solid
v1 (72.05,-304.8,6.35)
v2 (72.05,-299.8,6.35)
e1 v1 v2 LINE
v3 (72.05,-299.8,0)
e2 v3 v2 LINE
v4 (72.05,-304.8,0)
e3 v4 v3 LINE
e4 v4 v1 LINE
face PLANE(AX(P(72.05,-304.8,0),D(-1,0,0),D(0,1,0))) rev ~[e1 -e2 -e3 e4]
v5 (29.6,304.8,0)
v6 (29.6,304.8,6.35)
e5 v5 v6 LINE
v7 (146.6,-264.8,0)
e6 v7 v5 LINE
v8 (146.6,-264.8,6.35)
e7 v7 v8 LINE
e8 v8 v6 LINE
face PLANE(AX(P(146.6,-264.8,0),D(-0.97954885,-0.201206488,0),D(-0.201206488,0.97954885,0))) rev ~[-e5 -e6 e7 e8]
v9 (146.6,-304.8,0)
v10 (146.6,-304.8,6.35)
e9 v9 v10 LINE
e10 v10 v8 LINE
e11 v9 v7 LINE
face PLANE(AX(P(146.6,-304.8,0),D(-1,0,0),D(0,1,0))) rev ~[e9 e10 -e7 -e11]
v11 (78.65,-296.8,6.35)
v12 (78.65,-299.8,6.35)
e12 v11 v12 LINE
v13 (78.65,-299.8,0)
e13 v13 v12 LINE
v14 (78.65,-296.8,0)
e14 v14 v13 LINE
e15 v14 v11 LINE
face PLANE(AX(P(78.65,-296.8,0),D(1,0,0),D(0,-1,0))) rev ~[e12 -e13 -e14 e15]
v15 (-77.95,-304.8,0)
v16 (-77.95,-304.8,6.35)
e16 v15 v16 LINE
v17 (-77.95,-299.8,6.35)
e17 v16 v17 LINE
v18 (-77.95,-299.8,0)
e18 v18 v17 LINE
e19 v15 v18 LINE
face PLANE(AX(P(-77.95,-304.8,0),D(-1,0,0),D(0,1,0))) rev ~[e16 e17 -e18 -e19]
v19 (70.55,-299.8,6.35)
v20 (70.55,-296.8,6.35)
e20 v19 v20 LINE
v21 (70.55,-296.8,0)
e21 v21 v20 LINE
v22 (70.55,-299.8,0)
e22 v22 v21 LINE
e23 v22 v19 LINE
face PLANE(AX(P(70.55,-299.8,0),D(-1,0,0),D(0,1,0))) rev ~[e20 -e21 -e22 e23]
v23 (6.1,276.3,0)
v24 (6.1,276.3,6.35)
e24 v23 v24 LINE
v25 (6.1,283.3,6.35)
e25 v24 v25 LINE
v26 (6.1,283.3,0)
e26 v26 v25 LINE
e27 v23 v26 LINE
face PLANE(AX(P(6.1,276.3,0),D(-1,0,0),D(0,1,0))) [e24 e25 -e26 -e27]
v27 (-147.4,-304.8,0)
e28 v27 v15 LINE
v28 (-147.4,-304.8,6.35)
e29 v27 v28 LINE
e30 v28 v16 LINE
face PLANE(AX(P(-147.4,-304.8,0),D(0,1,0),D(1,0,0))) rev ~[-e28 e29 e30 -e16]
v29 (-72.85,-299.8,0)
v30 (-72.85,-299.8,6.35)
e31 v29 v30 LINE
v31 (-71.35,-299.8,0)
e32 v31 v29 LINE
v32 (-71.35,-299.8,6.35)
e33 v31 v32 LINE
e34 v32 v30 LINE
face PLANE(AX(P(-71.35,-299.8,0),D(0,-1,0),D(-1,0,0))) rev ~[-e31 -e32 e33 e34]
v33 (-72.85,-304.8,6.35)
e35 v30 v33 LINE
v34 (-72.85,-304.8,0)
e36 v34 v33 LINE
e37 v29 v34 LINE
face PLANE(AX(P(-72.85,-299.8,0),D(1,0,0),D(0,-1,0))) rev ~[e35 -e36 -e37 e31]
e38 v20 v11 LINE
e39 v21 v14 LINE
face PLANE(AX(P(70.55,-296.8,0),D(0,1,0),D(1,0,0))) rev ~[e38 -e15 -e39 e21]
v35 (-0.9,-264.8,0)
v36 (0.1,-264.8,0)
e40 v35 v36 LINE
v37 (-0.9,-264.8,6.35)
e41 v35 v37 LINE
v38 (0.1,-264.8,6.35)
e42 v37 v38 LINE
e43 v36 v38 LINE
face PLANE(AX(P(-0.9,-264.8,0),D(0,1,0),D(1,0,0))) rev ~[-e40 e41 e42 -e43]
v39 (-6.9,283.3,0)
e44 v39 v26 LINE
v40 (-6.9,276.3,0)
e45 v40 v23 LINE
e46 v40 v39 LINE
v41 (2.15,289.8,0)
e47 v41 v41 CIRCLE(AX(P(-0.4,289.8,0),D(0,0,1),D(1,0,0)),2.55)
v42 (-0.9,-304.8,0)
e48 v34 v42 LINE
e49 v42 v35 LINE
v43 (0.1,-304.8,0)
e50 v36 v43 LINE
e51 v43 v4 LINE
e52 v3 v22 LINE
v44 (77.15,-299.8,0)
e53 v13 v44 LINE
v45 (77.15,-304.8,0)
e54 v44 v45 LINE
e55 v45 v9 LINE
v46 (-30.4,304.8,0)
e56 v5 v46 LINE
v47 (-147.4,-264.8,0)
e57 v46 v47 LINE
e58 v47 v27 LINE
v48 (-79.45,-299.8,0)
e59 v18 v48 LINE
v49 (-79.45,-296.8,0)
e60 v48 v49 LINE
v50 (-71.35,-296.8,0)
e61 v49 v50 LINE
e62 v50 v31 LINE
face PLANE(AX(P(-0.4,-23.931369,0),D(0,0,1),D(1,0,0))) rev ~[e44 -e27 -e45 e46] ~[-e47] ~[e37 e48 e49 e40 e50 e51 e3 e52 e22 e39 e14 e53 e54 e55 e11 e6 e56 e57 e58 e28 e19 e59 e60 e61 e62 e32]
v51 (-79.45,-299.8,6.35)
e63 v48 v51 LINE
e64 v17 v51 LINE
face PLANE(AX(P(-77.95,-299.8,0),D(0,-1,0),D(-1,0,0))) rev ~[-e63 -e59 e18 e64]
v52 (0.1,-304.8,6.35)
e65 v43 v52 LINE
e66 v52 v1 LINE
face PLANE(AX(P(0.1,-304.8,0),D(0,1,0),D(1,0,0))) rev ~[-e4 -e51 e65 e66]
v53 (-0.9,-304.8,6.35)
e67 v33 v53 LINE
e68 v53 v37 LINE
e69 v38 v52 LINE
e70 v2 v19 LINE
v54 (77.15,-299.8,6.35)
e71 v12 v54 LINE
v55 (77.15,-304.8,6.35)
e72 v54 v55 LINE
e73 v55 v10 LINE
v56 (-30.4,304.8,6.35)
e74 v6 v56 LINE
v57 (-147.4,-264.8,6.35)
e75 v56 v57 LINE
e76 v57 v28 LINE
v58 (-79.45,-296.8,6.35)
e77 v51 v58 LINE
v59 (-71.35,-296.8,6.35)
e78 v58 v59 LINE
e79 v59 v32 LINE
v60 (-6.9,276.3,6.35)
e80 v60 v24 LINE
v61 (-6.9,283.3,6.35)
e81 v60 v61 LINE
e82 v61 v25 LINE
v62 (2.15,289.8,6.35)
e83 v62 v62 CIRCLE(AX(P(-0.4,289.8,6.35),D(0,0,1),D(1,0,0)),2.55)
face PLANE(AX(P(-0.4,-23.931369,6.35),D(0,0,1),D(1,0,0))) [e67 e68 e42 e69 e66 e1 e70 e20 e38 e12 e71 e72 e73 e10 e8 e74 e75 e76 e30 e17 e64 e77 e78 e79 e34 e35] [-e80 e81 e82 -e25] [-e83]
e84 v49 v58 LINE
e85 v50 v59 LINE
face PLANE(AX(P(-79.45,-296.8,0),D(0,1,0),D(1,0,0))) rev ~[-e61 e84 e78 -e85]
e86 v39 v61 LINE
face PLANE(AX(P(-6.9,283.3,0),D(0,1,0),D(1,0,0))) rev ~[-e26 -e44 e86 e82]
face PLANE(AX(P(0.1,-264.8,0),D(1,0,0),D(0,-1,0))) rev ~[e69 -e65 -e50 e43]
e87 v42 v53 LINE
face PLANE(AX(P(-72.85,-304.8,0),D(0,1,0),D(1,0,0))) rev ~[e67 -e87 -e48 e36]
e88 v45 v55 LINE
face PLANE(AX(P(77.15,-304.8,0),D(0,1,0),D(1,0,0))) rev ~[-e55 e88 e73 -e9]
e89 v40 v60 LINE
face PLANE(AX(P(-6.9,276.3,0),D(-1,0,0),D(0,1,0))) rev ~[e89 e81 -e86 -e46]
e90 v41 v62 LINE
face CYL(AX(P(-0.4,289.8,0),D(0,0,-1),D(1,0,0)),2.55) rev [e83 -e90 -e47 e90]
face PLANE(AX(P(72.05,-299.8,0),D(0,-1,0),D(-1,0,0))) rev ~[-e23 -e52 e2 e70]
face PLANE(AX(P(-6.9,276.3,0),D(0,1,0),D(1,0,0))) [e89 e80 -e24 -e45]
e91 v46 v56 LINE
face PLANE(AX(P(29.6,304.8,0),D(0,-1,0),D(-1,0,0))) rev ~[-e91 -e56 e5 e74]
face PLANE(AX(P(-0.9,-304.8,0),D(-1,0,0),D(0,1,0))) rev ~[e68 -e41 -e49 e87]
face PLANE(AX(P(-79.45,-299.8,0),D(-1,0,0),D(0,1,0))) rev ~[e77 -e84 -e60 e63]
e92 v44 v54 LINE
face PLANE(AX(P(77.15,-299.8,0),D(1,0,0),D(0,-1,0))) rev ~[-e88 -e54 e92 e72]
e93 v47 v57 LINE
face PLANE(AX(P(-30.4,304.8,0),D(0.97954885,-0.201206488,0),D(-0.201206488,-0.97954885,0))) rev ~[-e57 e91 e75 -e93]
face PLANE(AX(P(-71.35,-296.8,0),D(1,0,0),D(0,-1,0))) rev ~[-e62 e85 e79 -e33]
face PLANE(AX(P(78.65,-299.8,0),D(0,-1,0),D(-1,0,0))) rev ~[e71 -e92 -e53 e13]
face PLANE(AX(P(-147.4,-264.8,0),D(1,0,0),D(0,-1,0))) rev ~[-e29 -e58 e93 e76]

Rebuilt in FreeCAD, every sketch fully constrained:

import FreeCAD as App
import Part
import Sketcher

V = App.Vector

doc = App.newDocument("Part")
params = doc.addObject("Spreadsheet::Sheet", "Params")
for row, (alias, value) in enumerate([
    ("sketch1_diameter", "5.1 mm"),
    ("sketch1_width", "1 mm"),
    ("sketch1_width2", "60 mm"),
    ("sketch1_width3", "13 mm"),
    ("sketch1_height", "40 mm"),
    ("pad1_length", "6.35 mm"),
], start=1):
    params.set(f"A{row}", alias)
    params.set(f"B{row}", "=" + value)
    params.setAlias(f"B{row}", alias)

body = doc.addObject("PartDesign::Body", "Body")

# Sketch on XY plane
sketch1 = body.newObject("Sketcher::SketchObject", "Sketch")
sketch1.AttachmentSupport = (doc.getObject("XY_Plane"), [""])
sketch1.MapMode = "FlatFace"
sketch1.addGeometry(Part.LineSegment(V(-30.4, 304.8, 0), V(-147.4, -264.8, 0)), False)
sketch1.addGeometry(Part.LineSegment(V(-147.4, -264.8, 0), V(-147.4, -304.8, 0)), False)
sketch1.addGeometry(Part.LineSegment(V(-147.4, -304.8, 0), V(-77.95, -304.8, 0)), False)
sketch1.addGeometry(Part.LineSegment(V(-77.95, -304.8, 0), V(-77.95, -299.8, 0)), False)
sketch1.addGeometry(Part.LineSegment(V(-77.95, -299.8, 0), V(-79.45, -299.8, 0)), False)
sketch1.addGeometry(Part.LineSegment(V(-79.45, -299.8, 0), V(-79.45, -296.8, 0)), False)
sketch1.addGeometry(Part.LineSegment(V(-79.45, -296.8, 0), V(-71.35, -296.8, 0)), False)
sketch1.addGeometry(Part.LineSegment(V(-71.35, -296.8, 0), V(-71.35, -299.8, 0)), False)
sketch1.addGeometry(Part.LineSegment(V(-71.35, -299.8, 0), V(-72.85, -299.8, 0)), False)
sketch1.addGeometry(Part.LineSegment(V(-72.85, -299.8, 0), V(-72.85, -304.8, 0)), False)
sketch1.addGeometry(Part.LineSegment(V(-72.85, -304.8, 0), V(-0.9, -304.8, 0)), False)
sketch1.addGeometry(Part.LineSegment(V(-0.9, -304.8, 0), V(-0.9, -264.8, 0)), False)
sketch1.addGeometry(Part.LineSegment(V(-0.9, -264.8, 0), V(0.1, -264.8, 0)), False)
sketch1.addGeometry(Part.LineSegment(V(0.1, -264.8, 0), V(0.1, -304.8, 0)), False)
sketch1.addGeometry(Part.LineSegment(V(0.1, -304.8, 0), V(72.05, -304.8, 0)), False)
sketch1.addGeometry(Part.LineSegment(V(72.05, -304.8, 0), V(72.05, -299.8, 0)), False)
sketch1.addGeometry(Part.LineSegment(V(72.05, -299.8, 0), V(70.55, -299.8, 0)), False)
sketch1.addGeometry(Part.LineSegment(V(70.55, -299.8, 0), V(70.55, -296.8, 0)), False)
sketch1.addGeometry(Part.LineSegment(V(70.55, -296.8, 0), V(78.65, -296.8, 0)), False)
sketch1.addGeometry(Part.LineSegment(V(78.65, -296.8, 0), V(78.65, -299.8, 0)), False)
sketch1.addGeometry(Part.LineSegment(V(78.65, -299.8, 0), V(77.15, -299.8, 0)), False)
sketch1.addGeometry(Part.LineSegment(V(77.15, -299.8, 0), V(77.15, -304.8, 0)), False)
sketch1.addGeometry(Part.LineSegment(V(77.15, -304.8, 0), V(146.6, -304.8, 0)), False)
sketch1.addGeometry(Part.LineSegment(V(146.6, -304.8, 0), V(146.6, -264.8, 0)), False)
sketch1.addGeometry(Part.LineSegment(V(146.6, -264.8, 0), V(29.6, 304.8, 0)), False)
sketch1.addGeometry(Part.LineSegment(V(29.6, 304.8, 0), V(-30.4, 304.8, 0)), False)
sketch1.addGeometry(Part.LineSegment(V(6.1, 276.3, 0), V(-6.9, 276.3, 0)), False)
sketch1.addGeometry(Part.LineSegment(V(-6.9, 276.3, 0), V(-6.9, 283.3, 0)), False)
sketch1.addGeometry(Part.LineSegment(V(-6.9, 283.3, 0), V(6.1, 283.3, 0)), False)
sketch1.addGeometry(Part.LineSegment(V(6.1, 283.3, 0), V(6.1, 276.3, 0)), False)
sketch1.addGeometry(Part.Circle(V(-0.4, 289.8, 0), V(0, 0, 1), 2.55), False)
sketch1.addConstraint(Sketcher.Constraint("Coincident", 0, 2, 1, 1))
sketch1.addConstraint(Sketcher.Constraint("Coincident", 1, 2, 2, 1))
sketch1.addConstraint(Sketcher.Constraint("Coincident", 2, 2, 3, 1))
sketch1.addConstraint(Sketcher.Constraint("Coincident", 3, 2, 4, 1))
sketch1.addConstraint(Sketcher.Constraint("Coincident", 4, 2, 5, 1))
sketch1.addConstraint(Sketcher.Constraint("Coincident", 5, 2, 6, 1))
sketch1.addConstraint(Sketcher.Constraint("Coincident", 6, 2, 7, 1))
sketch1.addConstraint(Sketcher.Constraint("Coincident", 7, 2, 8, 1))
sketch1.addConstraint(Sketcher.Constraint("Coincident", 8, 2, 9, 1))
sketch1.addConstraint(Sketcher.Constraint("Coincident", 9, 2, 10, 1))
sketch1.addConstraint(Sketcher.Constraint("Coincident", 10, 2, 11, 1))
sketch1.addConstraint(Sketcher.Constraint("Coincident", 11, 2, 12, 1))
sketch1.addConstraint(Sketcher.Constraint("Coincident", 12, 2, 13, 1))
sketch1.addConstraint(Sketcher.Constraint("Coincident", 13, 2, 14, 1))
sketch1.addConstraint(Sketcher.Constraint("Coincident", 14, 2, 15, 1))
sketch1.addConstraint(Sketcher.Constraint("Coincident", 15, 2, 16, 1))
sketch1.addConstraint(Sketcher.Constraint("Coincident", 16, 2, 17, 1))
sketch1.addConstraint(Sketcher.Constraint("Coincident", 17, 2, 18, 1))
sketch1.addConstraint(Sketcher.Constraint("Coincident", 18, 2, 19, 1))
sketch1.addConstraint(Sketcher.Constraint("Coincident", 19, 2, 20, 1))
sketch1.addConstraint(Sketcher.Constraint("Coincident", 20, 2, 21, 1))
sketch1.addConstraint(Sketcher.Constraint("Coincident", 21, 2, 22, 1))
sketch1.addConstraint(Sketcher.Constraint("Coincident", 22, 2, 23, 1))
sketch1.addConstraint(Sketcher.Constraint("Coincident", 23, 2, 24, 1))
sketch1.addConstraint(Sketcher.Constraint("Coincident", 24, 2, 25, 1))
sketch1.addConstraint(Sketcher.Constraint("Coincident", 25, 2, 0, 1))
sketch1.addConstraint(Sketcher.Constraint("Coincident", 26, 2, 27, 1))
sketch1.addConstraint(Sketcher.Constraint("Coincident", 27, 2, 28, 1))
sketch1.addConstraint(Sketcher.Constraint("Coincident", 28, 2, 29, 1))
sketch1.addConstraint(Sketcher.Constraint("Coincident", 29, 2, 26, 1))
sketch1.addConstraint(Sketcher.Constraint("Vertical", 1))
sketch1.addConstraint(Sketcher.Constraint("Horizontal", 2))
sketch1.addConstraint(Sketcher.Constraint("Vertical", 3))
sketch1.addConstraint(Sketcher.Constraint("Horizontal", 4))
sketch1.addConstraint(Sketcher.Constraint("Vertical", 5))
sketch1.addConstraint(Sketcher.Constraint("Horizontal", 6))
sketch1.addConstraint(Sketcher.Constraint("Vertical", 7))
sketch1.addConstraint(Sketcher.Constraint("Horizontal", 8))
sketch1.addConstraint(Sketcher.Constraint("Vertical", 9))
sketch1.addConstraint(Sketcher.Constraint("Horizontal", 10))
sketch1.addConstraint(Sketcher.Constraint("Vertical", 11))
sketch1.addConstraint(Sketcher.Constraint("Horizontal", 12))
sketch1.addConstraint(Sketcher.Constraint("Vertical", 13))
sketch1.addConstraint(Sketcher.Constraint("Horizontal", 14))
sketch1.addConstraint(Sketcher.Constraint("Vertical", 15))
sketch1.addConstraint(Sketcher.Constraint("Horizontal", 16))
sketch1.addConstraint(Sketcher.Constraint("Vertical", 17))
sketch1.addConstraint(Sketcher.Constraint("Horizontal", 18))
sketch1.addConstraint(Sketcher.Constraint("Vertical", 19))
sketch1.addConstraint(Sketcher.Constraint("Horizontal", 20))
sketch1.addConstraint(Sketcher.Constraint("Vertical", 21))
sketch1.addConstraint(Sketcher.Constraint("Horizontal", 22))
sketch1.addConstraint(Sketcher.Constraint("Vertical", 23))
sketch1.addConstraint(Sketcher.Constraint("Horizontal", 25))
sketch1.addConstraint(Sketcher.Constraint("Horizontal", 26))
sketch1.addConstraint(Sketcher.Constraint("Vertical", 27))
sketch1.addConstraint(Sketcher.Constraint("Horizontal", 28))
sketch1.addConstraint(Sketcher.Constraint("Vertical", 29))
sketch1.addConstraint(Sketcher.Constraint("Horizontal", 4, 2, 7, 2))
sketch1.addConstraint(Sketcher.Constraint("Horizontal", 2, 2, 9, 2))
sketch1.addConstraint(Sketcher.Constraint("Horizontal", 0, 2, 11, 2))
sketch1.addConstraint(Sketcher.Constraint("Horizontal", 10, 2, 13, 2))
sketch1.addConstraint(Sketcher.Constraint("Horizontal", 8, 2, 15, 2))
sketch1.addConstraint(Sketcher.Constraint("Horizontal", 6, 2, 17, 2))
sketch1.addConstraint(Sketcher.Constraint("Horizontal", 16, 2, 19, 2))
sketch1.addConstraint(Sketcher.Constraint("Horizontal", 14, 2, 21, 2))
sketch1.addConstraint(Sketcher.Constraint("Horizontal", 12, 2, 23, 2))
sketch1.addConstraint(Sketcher.Constraint("Equal", 4, 8))
sketch1.addConstraint(Sketcher.Constraint("Equal", 10, 14))
sketch1.addConstraint(Sketcher.Constraint("Equal", 8, 16))
sketch1.addConstraint(Sketcher.Constraint("Equal", 6, 18))
sketch1.addConstraint(Sketcher.Constraint("Equal", 16, 20))
sketch1.addConstraint(Sketcher.Constraint("Equal", 2, 22))
sketch1.addConstraint(Sketcher.Constraint("Equal", 0, 24))
sketch1.addConstraint(Sketcher.Constraint("Diameter", 30, 5.1))
sketch1.addConstraint(Sketcher.Constraint("DistanceX", 12, 1, 12, 2, 1.0))
sketch1.addConstraint(Sketcher.Constraint("DistanceX", 25, 2, 25, 1, 60.0))
sketch1.addConstraint(Sketcher.Constraint("DistanceX", 26, 2, 26, 1, 13.0))
sketch1.addConstraint(Sketcher.Constraint("DistanceY", 1, 2, 1, 1, 40.0))
sketch1.addConstraint(Sketcher.Constraint("DistanceY", 3, 1, 3, 2, 5.0))
sketch1.addConstraint(Sketcher.Constraint("DistanceY", 5, 1, 5, 2, 3.0))
sketch1.addConstraint(Sketcher.Constraint("DistanceY", 27, 1, 27, 2, 7.0))
sketch1.addConstraint(Sketcher.Constraint("DistanceX", 4, 2, 4, 1, 1.5))
sketch1.addConstraint(Sketcher.Constraint("DistanceX", 6, 1, 6, 2, 8.1))
sketch1.addConstraint(Sketcher.Constraint("DistanceX", 0, 2, 30, 3, 147.0))
sketch1.addConstraint(Sketcher.Constraint("DistanceX", 30, 3, 24, 2, 30.0))
sketch1.addConstraint(Sketcher.Constraint("DistanceY", 30, 3, 24, 2, 15.0))
sketch1.addConstraint(Sketcher.Constraint("DistanceX", 26, 2, 11, 2, 6.0))
sketch1.addConstraint(Sketcher.Constraint("DistanceX", 2, 1, 2, 2, 69.45))
sketch1.addConstraint(Sketcher.Constraint("DistanceX", 30, 3, -1, 1, 0.4))
sketch1.addConstraint(Sketcher.Constraint("DistanceY", -1, 1, 30, 3, 289.8))
sketch1.addConstraint(Sketcher.Constraint("DistanceY", 0, 2, -1, 1, 264.8))
sketch1.addConstraint(Sketcher.Constraint("DistanceY", -1, 1, 26, 2, 276.3))
sketch1.setExpression("Constraints[74]", "Params.sketch1_diameter")
sketch1.setExpression("Constraints[75]", "Params.sketch1_width")
sketch1.setExpression("Constraints[76]", "Params.sketch1_width2")
sketch1.setExpression("Constraints[77]", "Params.sketch1_width3")
sketch1.setExpression("Constraints[78]", "Params.sketch1_height")
pad1 = body.newObject("PartDesign::Pad", "Pad")
pad1.Profile = sketch1
pad1.setExpression("Length", "Params.pad1_length")

doc.recompute()
